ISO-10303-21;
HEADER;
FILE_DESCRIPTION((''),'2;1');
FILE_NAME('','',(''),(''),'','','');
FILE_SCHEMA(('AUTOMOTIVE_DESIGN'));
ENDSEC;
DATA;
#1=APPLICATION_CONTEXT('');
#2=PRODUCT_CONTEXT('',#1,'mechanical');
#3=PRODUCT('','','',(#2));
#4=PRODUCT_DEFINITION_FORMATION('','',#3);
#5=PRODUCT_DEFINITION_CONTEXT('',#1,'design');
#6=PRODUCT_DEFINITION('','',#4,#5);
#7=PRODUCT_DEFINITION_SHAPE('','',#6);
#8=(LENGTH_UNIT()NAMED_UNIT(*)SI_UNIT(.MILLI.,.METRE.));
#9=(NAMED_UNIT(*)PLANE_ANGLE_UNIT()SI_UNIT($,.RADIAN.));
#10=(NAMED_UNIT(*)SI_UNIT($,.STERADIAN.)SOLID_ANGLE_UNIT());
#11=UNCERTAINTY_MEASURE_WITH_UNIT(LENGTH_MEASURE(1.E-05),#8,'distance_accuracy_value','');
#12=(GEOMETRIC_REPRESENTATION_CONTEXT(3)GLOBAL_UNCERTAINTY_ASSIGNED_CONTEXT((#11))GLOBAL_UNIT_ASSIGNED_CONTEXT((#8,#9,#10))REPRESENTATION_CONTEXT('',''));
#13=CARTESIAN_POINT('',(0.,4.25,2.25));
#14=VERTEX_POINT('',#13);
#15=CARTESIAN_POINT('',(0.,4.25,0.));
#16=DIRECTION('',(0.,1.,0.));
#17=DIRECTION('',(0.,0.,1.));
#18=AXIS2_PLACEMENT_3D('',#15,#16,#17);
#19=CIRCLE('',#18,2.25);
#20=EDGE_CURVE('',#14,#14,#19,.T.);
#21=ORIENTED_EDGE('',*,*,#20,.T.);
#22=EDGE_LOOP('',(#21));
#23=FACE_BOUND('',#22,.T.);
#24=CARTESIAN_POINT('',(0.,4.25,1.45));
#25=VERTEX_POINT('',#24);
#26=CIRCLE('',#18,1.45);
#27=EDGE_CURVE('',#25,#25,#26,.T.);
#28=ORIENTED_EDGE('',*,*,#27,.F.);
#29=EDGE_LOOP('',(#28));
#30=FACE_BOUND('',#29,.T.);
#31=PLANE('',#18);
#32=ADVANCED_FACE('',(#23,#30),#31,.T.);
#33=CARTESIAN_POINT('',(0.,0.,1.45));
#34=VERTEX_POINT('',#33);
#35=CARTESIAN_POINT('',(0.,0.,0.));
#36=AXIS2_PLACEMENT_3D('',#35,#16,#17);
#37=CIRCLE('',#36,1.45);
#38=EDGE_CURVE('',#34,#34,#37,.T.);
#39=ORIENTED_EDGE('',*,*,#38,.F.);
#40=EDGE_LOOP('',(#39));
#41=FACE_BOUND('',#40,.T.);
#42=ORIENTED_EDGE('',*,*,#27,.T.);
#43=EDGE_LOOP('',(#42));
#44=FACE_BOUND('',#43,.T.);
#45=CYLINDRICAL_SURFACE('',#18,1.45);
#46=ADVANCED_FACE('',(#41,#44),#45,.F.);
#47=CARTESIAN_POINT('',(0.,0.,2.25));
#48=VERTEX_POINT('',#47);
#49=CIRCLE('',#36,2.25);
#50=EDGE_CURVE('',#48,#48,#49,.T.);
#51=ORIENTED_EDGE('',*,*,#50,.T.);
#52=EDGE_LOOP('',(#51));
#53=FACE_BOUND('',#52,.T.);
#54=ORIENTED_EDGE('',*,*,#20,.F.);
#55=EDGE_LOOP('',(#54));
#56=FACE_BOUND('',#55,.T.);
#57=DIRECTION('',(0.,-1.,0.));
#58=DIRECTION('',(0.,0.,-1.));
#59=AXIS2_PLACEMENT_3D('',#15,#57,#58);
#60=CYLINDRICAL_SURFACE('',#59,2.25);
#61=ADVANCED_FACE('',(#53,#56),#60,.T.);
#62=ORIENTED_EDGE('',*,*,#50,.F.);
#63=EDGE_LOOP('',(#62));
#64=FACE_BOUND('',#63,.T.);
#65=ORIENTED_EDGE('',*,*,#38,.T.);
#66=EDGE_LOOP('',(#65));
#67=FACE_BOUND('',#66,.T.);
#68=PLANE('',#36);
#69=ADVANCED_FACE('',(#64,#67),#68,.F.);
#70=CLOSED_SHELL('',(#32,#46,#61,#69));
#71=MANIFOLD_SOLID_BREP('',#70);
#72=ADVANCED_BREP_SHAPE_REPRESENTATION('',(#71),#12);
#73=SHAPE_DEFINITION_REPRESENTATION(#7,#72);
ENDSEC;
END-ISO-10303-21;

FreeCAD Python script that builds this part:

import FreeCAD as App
import Part
import Sketcher
from FreeCAD import Vector

doc = App.newDocument("Part")
body = doc.addObject("PartDesign::Body", "Body")

sketch1 = body.newObject("Sketcher::SketchObject", "Sketch")
sketch1.AttachmentSupport = (doc.getObject("XZ_Plane"), [""])
sketch1.MapMode = "FlatFace"
sketch1.addGeometry(Part.Circle(Vector(0, 0, 0), Vector(0, 0, 1), 2.2), False)
sketch1.addConstraint(Sketcher.Constraint("Coincident", 0, 3, -1, 1))
sketch1.addConstraint(Sketcher.Constraint("Diameter", 0, 4.5))
pad1 = body.newObject("PartDesign::Pad", "Pad")
pad1.Profile = sketch1
pad1.Length = 4.25
pad1.Reversed = True

sketch2 = body.newObject("Sketcher::SketchObject", "Sketch001")
sketch2.AttachmentSupport = (doc.getObject("XZ_Plane"), [""])
sketch2.MapMode = "FlatFace"
sketch2.AttachmentOffset = App.Placement(Vector(0, 0, -4.25), App.Rotation())
sketch2.addGeometry(Part.Circle(Vector(0, 0, 0), Vector(0, 0, 1), 1.4), False)
sketch2.addConstraint(Sketcher.Constraint("Coincident", 0, 3, -1, 1))
sketch2.addConstraint(Sketcher.Constraint("Diameter", 0, 2.9))
doc.recompute()
hole = body.newObject("PartDesign::Hole", "Hole")
hole.Profile = sketch2
hole.ThreadType = "None"
hole.Diameter = 2.9
hole.DepthType = "ThroughAll"
hole.Reversed = True

doc.recompute()
